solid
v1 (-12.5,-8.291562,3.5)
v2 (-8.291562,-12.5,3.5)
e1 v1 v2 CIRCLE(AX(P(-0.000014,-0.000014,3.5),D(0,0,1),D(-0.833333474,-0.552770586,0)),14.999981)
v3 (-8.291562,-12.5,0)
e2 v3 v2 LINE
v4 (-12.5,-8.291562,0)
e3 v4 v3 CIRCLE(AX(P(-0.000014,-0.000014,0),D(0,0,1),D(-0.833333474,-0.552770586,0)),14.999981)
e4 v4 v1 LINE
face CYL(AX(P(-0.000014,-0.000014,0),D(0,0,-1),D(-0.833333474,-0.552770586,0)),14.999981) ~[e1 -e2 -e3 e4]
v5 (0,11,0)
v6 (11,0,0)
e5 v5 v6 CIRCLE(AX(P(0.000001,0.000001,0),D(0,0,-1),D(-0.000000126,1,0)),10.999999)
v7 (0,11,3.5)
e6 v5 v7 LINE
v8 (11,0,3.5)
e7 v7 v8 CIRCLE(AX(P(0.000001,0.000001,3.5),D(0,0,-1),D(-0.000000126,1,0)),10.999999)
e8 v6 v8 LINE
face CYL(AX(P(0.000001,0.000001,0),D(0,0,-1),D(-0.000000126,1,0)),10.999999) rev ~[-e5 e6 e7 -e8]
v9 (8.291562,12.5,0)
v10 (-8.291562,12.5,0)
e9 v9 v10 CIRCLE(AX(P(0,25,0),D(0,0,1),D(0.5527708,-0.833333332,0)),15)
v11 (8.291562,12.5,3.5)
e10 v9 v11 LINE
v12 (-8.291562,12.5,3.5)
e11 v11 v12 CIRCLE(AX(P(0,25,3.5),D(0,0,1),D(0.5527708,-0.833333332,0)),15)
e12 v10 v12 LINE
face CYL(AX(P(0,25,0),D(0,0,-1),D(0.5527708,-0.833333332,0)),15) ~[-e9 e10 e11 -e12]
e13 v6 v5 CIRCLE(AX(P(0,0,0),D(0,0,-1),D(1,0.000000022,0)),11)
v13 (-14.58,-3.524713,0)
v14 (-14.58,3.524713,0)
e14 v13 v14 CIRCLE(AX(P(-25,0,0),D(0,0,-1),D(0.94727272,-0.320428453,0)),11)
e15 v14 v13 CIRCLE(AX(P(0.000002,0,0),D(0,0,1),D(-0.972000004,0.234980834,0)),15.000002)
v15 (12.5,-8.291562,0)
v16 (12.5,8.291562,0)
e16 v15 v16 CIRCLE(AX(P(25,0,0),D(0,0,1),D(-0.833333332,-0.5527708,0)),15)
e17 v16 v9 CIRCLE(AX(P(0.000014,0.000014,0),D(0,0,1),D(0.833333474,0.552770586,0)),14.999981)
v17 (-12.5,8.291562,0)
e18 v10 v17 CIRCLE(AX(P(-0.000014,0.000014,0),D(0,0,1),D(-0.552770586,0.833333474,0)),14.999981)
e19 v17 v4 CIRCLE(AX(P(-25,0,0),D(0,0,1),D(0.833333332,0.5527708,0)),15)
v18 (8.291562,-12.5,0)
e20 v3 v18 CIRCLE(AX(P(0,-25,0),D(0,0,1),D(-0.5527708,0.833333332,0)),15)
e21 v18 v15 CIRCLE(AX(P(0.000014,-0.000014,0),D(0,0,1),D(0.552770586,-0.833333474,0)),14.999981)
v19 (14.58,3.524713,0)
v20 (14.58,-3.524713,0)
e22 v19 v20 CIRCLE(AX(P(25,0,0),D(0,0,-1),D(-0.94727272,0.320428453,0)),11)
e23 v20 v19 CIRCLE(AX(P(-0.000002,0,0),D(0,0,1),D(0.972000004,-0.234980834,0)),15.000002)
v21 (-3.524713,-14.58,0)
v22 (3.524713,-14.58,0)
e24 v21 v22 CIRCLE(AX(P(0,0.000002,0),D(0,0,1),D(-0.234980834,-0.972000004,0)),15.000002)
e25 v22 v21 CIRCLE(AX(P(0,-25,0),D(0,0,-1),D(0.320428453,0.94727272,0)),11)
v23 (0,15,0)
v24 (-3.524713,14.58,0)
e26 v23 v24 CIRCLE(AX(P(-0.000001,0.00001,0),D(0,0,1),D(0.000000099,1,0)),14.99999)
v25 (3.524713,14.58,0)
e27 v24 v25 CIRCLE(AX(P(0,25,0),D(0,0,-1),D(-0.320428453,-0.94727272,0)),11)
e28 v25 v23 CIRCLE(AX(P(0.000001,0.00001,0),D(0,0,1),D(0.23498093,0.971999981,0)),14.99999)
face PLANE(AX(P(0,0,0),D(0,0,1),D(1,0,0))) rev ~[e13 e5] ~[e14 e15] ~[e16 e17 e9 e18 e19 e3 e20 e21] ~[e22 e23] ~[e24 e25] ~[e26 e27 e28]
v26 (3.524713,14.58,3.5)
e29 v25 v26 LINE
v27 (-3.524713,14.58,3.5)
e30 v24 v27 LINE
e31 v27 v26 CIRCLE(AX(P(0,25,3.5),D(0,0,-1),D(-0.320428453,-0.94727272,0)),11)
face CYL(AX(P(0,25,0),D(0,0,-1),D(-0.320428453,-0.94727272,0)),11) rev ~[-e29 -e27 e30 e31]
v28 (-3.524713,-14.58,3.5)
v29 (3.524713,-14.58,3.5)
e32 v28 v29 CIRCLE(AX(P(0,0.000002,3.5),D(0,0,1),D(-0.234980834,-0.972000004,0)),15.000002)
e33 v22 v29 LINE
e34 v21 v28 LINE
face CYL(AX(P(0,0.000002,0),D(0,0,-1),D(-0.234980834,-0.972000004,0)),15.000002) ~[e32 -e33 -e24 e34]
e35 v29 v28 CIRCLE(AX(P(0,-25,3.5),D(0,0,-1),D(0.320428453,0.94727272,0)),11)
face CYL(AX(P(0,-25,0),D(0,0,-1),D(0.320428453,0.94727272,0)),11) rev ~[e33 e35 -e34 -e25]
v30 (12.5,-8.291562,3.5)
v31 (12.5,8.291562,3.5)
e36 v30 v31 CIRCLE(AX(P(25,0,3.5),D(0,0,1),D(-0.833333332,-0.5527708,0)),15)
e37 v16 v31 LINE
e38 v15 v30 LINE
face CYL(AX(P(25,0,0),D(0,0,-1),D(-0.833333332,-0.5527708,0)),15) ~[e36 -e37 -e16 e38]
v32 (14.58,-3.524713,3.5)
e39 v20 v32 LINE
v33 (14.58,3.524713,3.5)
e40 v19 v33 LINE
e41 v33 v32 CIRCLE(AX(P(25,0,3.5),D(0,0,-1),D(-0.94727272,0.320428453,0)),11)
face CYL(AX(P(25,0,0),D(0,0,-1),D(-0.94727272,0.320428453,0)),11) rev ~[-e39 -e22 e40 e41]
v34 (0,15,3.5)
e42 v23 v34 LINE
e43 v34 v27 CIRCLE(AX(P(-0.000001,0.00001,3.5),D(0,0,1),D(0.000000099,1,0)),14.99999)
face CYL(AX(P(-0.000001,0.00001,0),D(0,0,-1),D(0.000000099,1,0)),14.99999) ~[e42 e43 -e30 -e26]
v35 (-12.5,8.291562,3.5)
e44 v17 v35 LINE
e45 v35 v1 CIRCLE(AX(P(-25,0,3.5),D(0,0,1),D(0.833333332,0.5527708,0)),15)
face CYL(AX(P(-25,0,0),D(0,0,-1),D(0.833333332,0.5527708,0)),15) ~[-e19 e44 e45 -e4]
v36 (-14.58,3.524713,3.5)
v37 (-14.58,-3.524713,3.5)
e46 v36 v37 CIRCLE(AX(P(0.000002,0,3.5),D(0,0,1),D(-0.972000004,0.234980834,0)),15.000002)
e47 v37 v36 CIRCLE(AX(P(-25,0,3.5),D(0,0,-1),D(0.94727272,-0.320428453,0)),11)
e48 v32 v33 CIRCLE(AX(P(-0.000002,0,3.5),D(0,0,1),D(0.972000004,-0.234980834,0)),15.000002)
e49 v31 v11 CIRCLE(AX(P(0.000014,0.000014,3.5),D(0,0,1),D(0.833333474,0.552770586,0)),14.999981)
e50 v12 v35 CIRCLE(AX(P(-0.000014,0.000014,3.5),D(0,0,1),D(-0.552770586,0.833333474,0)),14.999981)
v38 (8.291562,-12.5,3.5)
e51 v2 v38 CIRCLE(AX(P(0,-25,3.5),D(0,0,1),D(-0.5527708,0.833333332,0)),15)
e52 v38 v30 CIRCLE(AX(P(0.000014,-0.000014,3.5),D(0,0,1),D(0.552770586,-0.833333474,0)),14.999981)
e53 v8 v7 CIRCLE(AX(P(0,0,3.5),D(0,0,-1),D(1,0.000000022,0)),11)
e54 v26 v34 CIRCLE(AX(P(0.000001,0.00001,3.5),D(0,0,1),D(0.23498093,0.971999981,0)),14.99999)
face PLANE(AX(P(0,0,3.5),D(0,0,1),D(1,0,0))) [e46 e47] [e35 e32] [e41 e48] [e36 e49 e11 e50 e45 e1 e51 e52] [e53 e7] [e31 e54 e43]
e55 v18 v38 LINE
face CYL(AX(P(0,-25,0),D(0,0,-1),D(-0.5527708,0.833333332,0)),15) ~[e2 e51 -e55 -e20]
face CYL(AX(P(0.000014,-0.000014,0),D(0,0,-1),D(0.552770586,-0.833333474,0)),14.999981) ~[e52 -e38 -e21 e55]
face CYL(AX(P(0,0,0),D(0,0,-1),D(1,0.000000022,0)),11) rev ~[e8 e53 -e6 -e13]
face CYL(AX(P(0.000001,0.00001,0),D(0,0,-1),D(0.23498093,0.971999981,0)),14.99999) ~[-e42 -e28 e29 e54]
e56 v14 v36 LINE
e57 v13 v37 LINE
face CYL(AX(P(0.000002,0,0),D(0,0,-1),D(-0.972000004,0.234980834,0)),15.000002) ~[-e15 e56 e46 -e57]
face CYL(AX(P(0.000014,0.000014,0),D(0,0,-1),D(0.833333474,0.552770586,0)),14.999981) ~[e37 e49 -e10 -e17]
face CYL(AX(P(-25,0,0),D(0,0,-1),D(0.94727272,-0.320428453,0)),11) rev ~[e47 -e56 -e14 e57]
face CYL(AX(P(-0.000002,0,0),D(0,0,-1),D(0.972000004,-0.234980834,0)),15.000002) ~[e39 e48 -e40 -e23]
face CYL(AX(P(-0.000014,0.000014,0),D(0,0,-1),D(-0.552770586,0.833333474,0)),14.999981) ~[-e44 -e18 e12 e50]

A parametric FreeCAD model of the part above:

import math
import FreeCAD as App
import Part
import Sketcher

V = App.Vector
Q = App.Units.Quantity

doc = App.newDocument("Part")
body = doc.addObject("PartDesign::Body", "Body")

# Sketch on XY plane
sketch1 = body.newObject("Sketcher::SketchObject", "Sketch")
sketch1.AttachmentSupport = (doc.getObject("XY_Plane"), [""])
sketch1.MapMode = "FlatFace"
sketch1.addGeometry([
    Part.ArcOfCircle(Part.Circle(V(0, 25, 0), V(0, 0, 1), 15), math.radians(-56.44269), math.radians(236.44269)),  # 0
    Part.ArcOfCircle(Part.Circle(V(-0.000014, 0.000014, 0), V(0, 0, 1), 14.999981), math.radians(123.557295), math.radians(146.442705)),  # 1
    Part.ArcOfCircle(Part.Circle(V(-25, 0, 0), V(0, 0, 1), 15), math.radians(33.55731), math.radians(326.44269)),  # 2
    Part.ArcOfCircle(Part.Circle(V(-0.000014, -0.000014, 0), V(0, 0, 1), 14.999981), math.radians(-146.442705), math.radians(-123.557295)),  # 3
    Part.ArcOfCircle(Part.Circle(V(0, -25, 0), V(0, 0, 1), 15), math.radians(123.55731), math.radians(416.44269)),  # 4
    Part.ArcOfCircle(Part.Circle(V(0.000014, -0.000014, 0), V(0, 0, 1), 14.999981), math.radians(-56.442705), math.radians(-33.557295)),  # 5
    Part.ArcOfCircle(Part.Circle(V(25, 0, 0), V(0, 0, 1), 15), math.radians(-146.44269), math.radians(146.44269)),  # 6
    Part.ArcOfCircle(Part.Circle(V(0.000014, 0.000014, 0), V(0, 0, 1), 14.999981), math.radians(33.557295), math.radians(56.442705)),  # 7
    Part.ArcOfCircle(Part.Circle(V(0, 0, 0), V(0, 0, 1), 11), math.radians(89.999999), math.radians(360.000001)),  # 8
    Part.ArcOfCircle(Part.Circle(V(0.000001, 0.000001, 0), V(0, 0, 1), 10.999999), math.radians(-0.000007), math.radians(90.000007)),  # 9
    Part.ArcOfCircle(Part.Circle(V(0, 0.000002, 0), V(0, 0, 1), 15.000002), math.radians(-103.590493), math.radians(-76.409507)),  # 10
    Part.ArcOfCircle(Part.Circle(V(0, -25, 0), V(0, 0, 1), 11), math.radians(108.688838), math.radians(431.311162)),  # 11
    Part.ArcOfCircle(Part.Circle(V(0.000002, 0, 0), V(0, 0, 1), 15.000002), math.radians(166.409507), math.radians(193.590493)),  # 12
    Part.ArcOfCircle(Part.Circle(V(-25, 0, 0), V(0, 0, 1), 11), math.radians(18.688838), math.radians(341.311162)),  # 13
    Part.ArcOfCircle(Part.Circle(V(-0.000002, 0, 0), V(0, 0, 1), 15.000002), math.radians(-13.590493), math.radians(13.590493)),  # 14
    Part.ArcOfCircle(Part.Circle(V(25, 0, 0), V(0, 0, 1), 11), math.radians(-161.311162), math.radians(161.311162)),  # 15
    Part.ArcOfCircle(Part.Circle(V(0, 25, 0), V(0, 0, 1), 11), math.radians(-71.311162), math.radians(251.311162)),  # 16
    Part.ArcOfCircle(Part.Circle(V(0.000001, 0.00001, 0), V(0, 0, 1), 14.99999), math.radians(76.409501), math.radians(90.000006)),  # 17
    Part.ArcOfCircle(Part.Circle(V(-0.000001, 0.00001, 0), V(0, 0, 1), 14.99999), math.radians(89.999994), math.radians(103.590499)),  # 18
], False)
sketch1.addConstraint([
    Sketcher.Constraint("Coincident", 0, 2, 1, 1),
    Sketcher.Constraint("Coincident", 1, 2, 2, 1),
    Sketcher.Constraint("Coincident", 2, 2, 3, 1),
    Sketcher.Constraint("Coincident", 3, 2, 4, 1),
    Sketcher.Constraint("Coincident", 4, 2, 5, 1),
    Sketcher.Constraint("Coincident", 5, 2, 6, 1),
    Sketcher.Constraint("Coincident", 6, 2, 7, 1),
    Sketcher.Constraint("Coincident", 7, 2, 0, 1),
    Sketcher.Constraint("Tangent", 8, 1, 9, 2),
    Sketcher.Constraint("Coincident", 9, 1, 8, 2),
    Sketcher.Constraint("Coincident", 10, 1, 11, 1),
    Sketcher.Constraint("Coincident", 11, 2, 10, 2),
    Sketcher.Constraint("Coincident", 12, 1, 13, 1),
    Sketcher.Constraint("Coincident", 13, 2, 12, 2),
    Sketcher.Constraint("Coincident", 14, 1, 15, 1),
    Sketcher.Constraint("Coincident", 15, 2, 14, 2),
    Sketcher.Constraint("Coincident", 16, 1, 17, 1),
    Sketcher.Constraint("Tangent", 17, 2, 18, 1),
    Sketcher.Constraint("Coincident", 18, 2, 16, 2),
    Sketcher.Constraint("Coincident", 8, 3, -1, 1),
    Sketcher.Constraint("Coincident", 10, 3, -1, 1),
    Sketcher.Constraint("Coincident", 12, 3, -1, 1),
    Sketcher.Constraint("Coincident", 14, 3, -1, 1),
    Sketcher.Constraint("Coincident", 11, 3, 4, 3),
    Sketcher.Constraint("Coincident", 13, 3, 2, 3),
    Sketcher.Constraint("Coincident", 15, 3, 6, 3),
    Sketcher.Constraint("Coincident", 16, 3, 0, 3),
    Sketcher.Constraint("Coincident", 17, 3, 9, 3),
    Sketcher.Constraint("Equal", 0, 2),
    Sketcher.Constraint("Equal", 1, 3),
    Sketcher.Constraint("Equal", 2, 4),
    Sketcher.Constraint("Equal", 3, 5),
    Sketcher.Constraint("Equal", 4, 6),
    Sketcher.Constraint("Equal", 5, 7),
    Sketcher.Constraint("Equal", 9, 11),
    Sketcher.Constraint("Equal", 10, 12),
    Sketcher.Constraint("Equal", 11, 13),
    Sketcher.Constraint("Equal", 12, 14),
    Sketcher.Constraint("Equal", 13, 15),
    Sketcher.Constraint("Equal", 15, 16),
    Sketcher.Constraint("Equal", 17, 18),
    Sketcher.Constraint("Symmetric", 0, 3, 4, 3, -1, 1),
    Sketcher.Constraint("Symmetric", 1, 3, 5, 3, -1, 1),
    Sketcher.Constraint("Symmetric", 2, 3, 6, 3, -1, 1),
    Sketcher.Constraint("Symmetric", 3, 3, 7, 3, -1, 1),
    Sketcher.Constraint("Symmetric", 3, 3, 5, 3, -2),
    Sketcher.Constraint("Symmetric", 11, 2, 16, 1, -1),
    Sketcher.Constraint("PointOnObject", 2, 3, -1),
    Sketcher.Constraint("PointOnObject", 8, 1, -2),
    Sketcher.Constraint("PointOnObject", 9, 1, -1),
    Sketcher.Constraint("PointOnObject", 17, 2, -2),
    Sketcher.Constraint("Radius", 0, Q("15 mm")),
    Sketcher.Constraint("Radius", 8, Q("11 mm")),
    Sketcher.Constraint("DistanceY", -1, 1, 0, 3, Q("25 mm")),
    Sketcher.Constraint("DistanceX", 2, 3, -1, 1, Q("25 mm")),
    Sketcher.Constraint("DistanceY", -1, 1, 17, 2, Q("15 mm")),
    Sketcher.Constraint("DistanceY", -1, 1, 0, 2, Q("12.5 mm")),
    Sketcher.Constraint("DistanceX", 1, 2, -1, 1, Q("12.5 mm")),
    Sketcher.Constraint("Radius", 1, Q("14.999981 mm")),
])
pad1 = body.newObject("PartDesign::Pad", "Pad")
pad1.Profile = sketch1
pad1.Length = 3.5

doc.recompute()
